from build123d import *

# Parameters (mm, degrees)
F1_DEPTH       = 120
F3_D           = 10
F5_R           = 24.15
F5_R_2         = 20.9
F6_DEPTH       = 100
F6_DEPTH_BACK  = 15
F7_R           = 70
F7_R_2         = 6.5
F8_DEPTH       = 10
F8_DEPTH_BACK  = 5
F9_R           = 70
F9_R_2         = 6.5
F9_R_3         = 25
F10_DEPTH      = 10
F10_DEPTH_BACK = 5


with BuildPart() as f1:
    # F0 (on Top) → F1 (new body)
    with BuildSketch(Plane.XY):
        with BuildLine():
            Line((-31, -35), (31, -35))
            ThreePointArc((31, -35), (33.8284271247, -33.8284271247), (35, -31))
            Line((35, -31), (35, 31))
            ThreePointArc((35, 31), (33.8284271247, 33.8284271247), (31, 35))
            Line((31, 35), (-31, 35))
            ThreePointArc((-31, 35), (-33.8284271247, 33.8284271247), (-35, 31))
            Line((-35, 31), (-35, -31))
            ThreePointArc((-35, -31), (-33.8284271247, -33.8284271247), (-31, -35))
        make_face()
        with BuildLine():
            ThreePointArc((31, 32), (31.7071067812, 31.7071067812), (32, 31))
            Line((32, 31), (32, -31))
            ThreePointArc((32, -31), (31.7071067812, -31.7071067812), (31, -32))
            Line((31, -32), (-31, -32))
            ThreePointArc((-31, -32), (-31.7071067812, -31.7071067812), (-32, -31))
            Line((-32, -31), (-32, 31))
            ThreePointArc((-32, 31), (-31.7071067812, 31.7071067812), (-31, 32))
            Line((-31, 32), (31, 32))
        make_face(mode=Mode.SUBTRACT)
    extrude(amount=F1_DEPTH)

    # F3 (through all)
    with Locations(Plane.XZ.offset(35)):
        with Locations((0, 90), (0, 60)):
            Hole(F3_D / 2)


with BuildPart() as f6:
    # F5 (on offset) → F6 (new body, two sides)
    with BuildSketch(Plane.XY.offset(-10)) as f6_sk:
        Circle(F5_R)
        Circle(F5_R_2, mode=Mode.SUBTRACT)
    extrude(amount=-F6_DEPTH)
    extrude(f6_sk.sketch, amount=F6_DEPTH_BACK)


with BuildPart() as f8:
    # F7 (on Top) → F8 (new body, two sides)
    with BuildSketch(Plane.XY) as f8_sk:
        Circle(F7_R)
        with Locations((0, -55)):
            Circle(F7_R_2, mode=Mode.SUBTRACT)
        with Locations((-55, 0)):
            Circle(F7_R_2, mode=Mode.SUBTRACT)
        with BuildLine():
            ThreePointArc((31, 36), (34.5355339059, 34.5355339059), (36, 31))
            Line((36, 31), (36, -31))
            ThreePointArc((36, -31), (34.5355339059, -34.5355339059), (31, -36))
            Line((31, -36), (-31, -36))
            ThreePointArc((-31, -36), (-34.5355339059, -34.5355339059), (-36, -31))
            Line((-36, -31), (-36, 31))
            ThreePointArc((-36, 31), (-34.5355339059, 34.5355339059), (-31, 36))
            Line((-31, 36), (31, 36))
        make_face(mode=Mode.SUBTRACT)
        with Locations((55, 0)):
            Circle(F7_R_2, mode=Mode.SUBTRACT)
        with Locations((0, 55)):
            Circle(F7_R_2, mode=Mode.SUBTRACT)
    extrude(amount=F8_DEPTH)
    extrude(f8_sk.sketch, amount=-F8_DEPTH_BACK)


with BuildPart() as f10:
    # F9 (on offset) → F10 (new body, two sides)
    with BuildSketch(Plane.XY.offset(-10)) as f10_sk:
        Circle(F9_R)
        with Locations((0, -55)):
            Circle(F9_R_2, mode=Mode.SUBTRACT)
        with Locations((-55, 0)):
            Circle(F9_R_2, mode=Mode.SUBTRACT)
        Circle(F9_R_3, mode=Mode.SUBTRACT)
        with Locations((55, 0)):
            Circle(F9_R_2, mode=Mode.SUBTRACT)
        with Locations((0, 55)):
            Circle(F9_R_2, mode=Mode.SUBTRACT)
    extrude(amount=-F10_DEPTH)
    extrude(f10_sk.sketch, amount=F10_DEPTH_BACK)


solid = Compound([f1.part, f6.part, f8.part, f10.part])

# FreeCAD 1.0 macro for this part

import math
import FreeCAD as App
import Part
import Sketcher
Q = App.Units.Quantity

doc = App.newDocument("Part")
body = doc.addObject("PartDesign::Body", "Body")

# Sketch on XY plane
sketch1 = body.newObject("Sketcher::SketchObject", "Sketch")
sketch1.AttachmentSupport = (doc.getObject("XY_Plane"), [""])
sketch1.MapMode = "FlatFace"
sketch1.addGeometry(Part.LineSegment(App.Vector(-31, -35, 0), App.Vector(31, -35, 0)), False)
sketch1.addGeometry(Part.ArcOfCircle(Part.Circle(App.Vector(31, -31, 0), App.Vector(0, 0, 1), 4), math.radians(-90), math.radians(0)), False)
sketch1.addGeometry(Part.LineSegment(App.Vector(35, -31, 0), App.Vector(35, 31, 0)), False)
sketch1.addGeometry(Part.ArcOfCircle(Part.Circle(App.Vector(31, 31, 0), App.Vector(0, 0, 1), 4), math.radians(0), math.radians(90)), False)
sketch1.addGeometry(Part.LineSegment(App.Vector(31, 35, 0), App.Vector(-31, 35, 0)), False)
sketch1.addGeometry(Part.ArcOfCircle(Part.Circle(App.Vector(-31, 31, 0), App.Vector(0, 0, 1), 4), math.radians(90), math.radians(180)), False)
sketch1.addGeometry(Part.LineSegment(App.Vector(-35, 31, 0), App.Vector(-35, -31, 0)), False)
sketch1.addGeometry(Part.ArcOfCircle(Part.Circle(App.Vector(-31, -31, 0), App.Vector(0, 0, 1), 4), math.radians(180), math.radians(270)), False)
sketch1.addGeometry(Part.LineSegment(App.Vector(-31, 32, 0), App.Vector(31, 32, 0)), False)
sketch1.addGeometry(Part.ArcOfCircle(Part.Circle(App.Vector(31, 31, 0), App.Vector(0, 0, 1), 1), math.radians(0), math.radians(90)), False)
sketch1.addGeometry(Part.LineSegment(App.Vector(32, 31, 0), App.Vector(32, -31, 0)), False)
sketch1.addGeometry(Part.ArcOfCircle(Part.Circle(App.Vector(31, -31, 0), App.Vector(0, 0, 1), 1), math.radians(-90), math.radians(0)), False)
sketch1.addGeometry(Part.LineSegment(App.Vector(31, -32, 0), App.Vector(-31, -32, 0)), False)
sketch1.addGeometry(Part.ArcOfCircle(Part.Circle(App.Vector(-31, -31, 0), App.Vector(0, 0, 1), 1), math.radians(180), math.radians(270)), False)
sketch1.addGeometry(Part.LineSegment(App.Vector(-32, -31, 0), App.Vector(-32, 31, 0)), False)
sketch1.addGeometry(Part.ArcOfCircle(Part.Circle(App.Vector(-31, 31, 0), App.Vector(0, 0, 1), 1), math.radians(90), math.radians(180)), False)
sketch1.addConstraint(Sketcher.Constraint("Tangent", 0, 2, 1, 1))
sketch1.addConstraint(Sketcher.Constraint("Tangent", 1, 2, 2, 1))
sketch1.addConstraint(Sketcher.Constraint("Tangent", 2, 2, 3, 1))
sketch1.addConstraint(Sketcher.Constraint("Tangent", 3, 2, 4, 1))
sketch1.addConstraint(Sketcher.Constraint("Tangent", 4, 2, 5, 1))
sketch1.addConstraint(Sketcher.Constraint("Tangent", 5, 2, 6, 1))
sketch1.addConstraint(Sketcher.Constraint("Tangent", 6, 2, 7, 1))
sketch1.addConstraint(Sketcher.Constraint("Tangent", 7, 2, 0, 1))
sketch1.addConstraint(Sketcher.Constraint("Tangent", 8, 2, 9, 2))
sketch1.addConstraint(Sketcher.Constraint("Tangent", 9, 1, 10, 1))
sketch1.addConstraint(Sketcher.Constraint("Tangent", 10, 2, 11, 2))
sketch1.addConstraint(Sketcher.Constraint("Tangent", 11, 1, 12, 1))
sketch1.addConstraint(Sketcher.Constraint("Tangent", 12, 2, 13, 2))
sketch1.addConstraint(Sketcher.Constraint("Tangent", 13, 1, 14, 1))
sketch1.addConstraint(Sketcher.Constraint("Tangent", 14, 2, 15, 2))
sketch1.addConstraint(Sketcher.Constraint("Tangent", 15, 1, 8, 1))
sketch1.addConstraint(Sketcher.Constraint("Horizontal", 0))
sketch1.addConstraint(Sketcher.Constraint("Vertical", 2))
sketch1.addConstraint(Sketcher.Constraint("Horizontal", 4))
sketch1.addConstraint(Sketcher.Constraint("Vertical", 6))
sketch1.addConstraint(Sketcher.Constraint("Horizontal", 8))
sketch1.addConstraint(Sketcher.Constraint("Vertical", 10))
sketch1.addConstraint(Sketcher.Constraint("Horizontal", 12))
sketch1.addConstraint(Sketcher.Constraint("Vertical", 14))
sketch1.addConstraint(Sketcher.Constraint("Coincident", 9, 3, 3, 3))
sketch1.addConstraint(Sketcher.Constraint("Coincident", 11, 3, 1, 3))
sketch1.addConstraint(Sketcher.Constraint("Coincident", 13, 3, 7, 3))
sketch1.addConstraint(Sketcher.Constraint("Equal", 1, 3))
sketch1.addConstraint(Sketcher.Constraint("Equal", 3, 5))
sketch1.addConstraint(Sketcher.Constraint("Equal", 5, 7))
sketch1.addConstraint(Sketcher.Constraint("Equal", 13, 15))
sketch1.addConstraint(Sketcher.Constraint("Symmetric", 1, 3, 5, 3, -1, 1))
sketch1.addConstraint(Sketcher.Constraint("Equal", 12, 2))
sketch1.addConstraint(Sketcher.Constraint("Radius", 1, Q("4 mm")))
sketch1.addConstraint(Sketcher.Constraint("Radius", 9, Q("1 mm")))
sketch1.addConstraint(Sketcher.Constraint("DistanceX", 0, 1, 0, 2, Q("62 mm")))
pad1 = body.newObject("PartDesign::Pad", "Pad")
pad1.Profile = sketch1
pad1.Length = 120

# Sketch on XZ plane
sketch2 = body.newObject("Sketcher::SketchObject", "Sketch001")
sketch2.AttachmentSupport = (doc.getObject("XZ_Plane"), [""])
sketch2.MapMode = "FlatFace"
sketch2.AttachmentOffset = App.Placement(App.Vector(0, 0, 35), App.Rotation())
sketch2.addGeometry(Part.Circle(App.Vector(0, 90, 0), App.Vector(0, 0, 1), 5), False)
sketch2.addGeometry(Part.Circle(App.Vector(0, 60, 0), App.Vector(0, 0, 1), 5), False)
sketch2.addConstraint(Sketcher.Constraint("Equal", 0, 1))
sketch2.addConstraint(Sketcher.Constraint("PointOnObject", 0, 3, -2))
sketch2.addConstraint(Sketcher.Constraint("PointOnObject", 1, 3, -2))
sketch2.addConstraint(Sketcher.Constraint("Diameter", 0, Q("10 mm")))
sketch2.addConstraint(Sketcher.Constraint("DistanceY", -1, 1, 0, 3, Q("90 mm")))
sketch2.addConstraint(Sketcher.Constraint("DistanceY", -1, 1, 1, 3, Q("60 mm")))
doc.recompute()
hole = body.newObject("PartDesign::Hole", "Hole")
hole.Profile = sketch2
hole.ThreadType = "None"
hole.Diameter = 10
hole.DepthType = "ThroughAll"
body2 = doc.addObject("PartDesign::Body", "Body001")

# Sketch on XY plane
sketch3 = body2.newObject("Sketcher::SketchObject", "Sketch002")
sketch3.AttachmentSupport = (doc.getObject("XY_Plane001"), [""])
sketch3.MapMode = "FlatFace"
sketch3.AttachmentOffset = App.Placement(App.Vector(0, 0, -10), App.Rotation())
sketch3.addGeometry(Part.Circle(App.Vector(0, 0, 0), App.Vector(0, 0, 1), 24.15), False)
sketch3.addGeometry(Part.Circle(App.Vector(0, 0, 0), App.Vector(0, 0, 1), 20.9), False)
sketch3.addConstraint(Sketcher.Constraint("Coincident", 0, 3, -1, 1))
sketch3.addConstraint(Sketcher.Constraint("Coincident", 1, 3, -1, 1))
sketch3.addConstraint(Sketcher.Constraint("Diameter", 0, Q("48.3 mm")))
sketch3.addConstraint(Sketcher.Constraint("Diameter", 1, Q("41.8 mm")))
pad2 = body2.newObject("PartDesign::Pad", "Pad001")
pad2.Profile = sketch3
pad2.Type = "TwoLengths"
pad2.Length = 100
pad2.Length2 = 15
pad2.Reversed = True
body3 = doc.addObject("PartDesign::Body", "Body002")

# Sketch on XY plane
sketch4 = body3.newObject("Sketcher::SketchObject", "Sketch003")
sketch4.AttachmentSupport = (doc.getObject("XY_Plane002"), [""])
sketch4.MapMode = "FlatFace"
sketch4.addGeometry(Part.Circle(App.Vector(0, 0, 0), App.Vector(0, 0, 1), 70), False)
sketch4.addGeometry(Part.Circle(App.Vector(0, -55, 0), App.Vector(0, 0, 1), 6.5), False)
sketch4.addGeometry(Part.Circle(App.Vector(-55, 0, 0), App.Vector(0, 0, 1), 6.5), False)
sketch4.addGeometry(Part.LineSegment(App.Vector(-31, 36, 0), App.Vector(31, 36, 0)), False)
sketch4.addGeometry(Part.ArcOfCircle(Part.Circle(App.Vector(31, 31, 0), App.Vector(0, 0, 1), 5), math.radians(0), math.radians(90)), False)
sketch4.addGeometry(Part.LineSegment(App.Vector(36, 31, 0), App.Vector(36, -31, 0)), False)
sketch4.addGeometry(Part.ArcOfCircle(Part.Circle(App.Vector(31, -31, 0), App.Vector(0, 0, 1), 5), math.radians(-90), math.radians(0)), False)
sketch4.addGeometry(Part.LineSegment(App.Vector(31, -36, 0), App.Vector(-31, -36, 0)), False)
sketch4.addGeometry(Part.ArcOfCircle(Part.Circle(App.Vector(-31, -31, 0), App.Vector(0, 0, 1), 5), math.radians(180), math.radians(270)), False)
sketch4.addGeometry(Part.LineSegment(App.Vector(-36, -31, 0), App.Vector(-36, 31, 0)), False)
sketch4.addGeometry(Part.ArcOfCircle(Part.Circle(App.Vector(-31, 31, 0), App.Vector(0, 0, 1), 5), math.radians(90), math.radians(180)), False)
sketch4.addGeometry(Part.Circle(App.Vector(55, 0, 0), App.Vector(0, 0, 1), 6.5), False)
sketch4.addGeometry(Part.Circle(App.Vector(0, 55, 0), App.Vector(0, 0, 1), 6.5), False)
sketch4.addConstraint(Sketcher.Constraint("Tangent", 3, 2, 4, 2))
sketch4.addConstraint(Sketcher.Constraint("Tangent", 4, 1, 5, 1))
sketch4.addConstraint(Sketcher.Constraint("Tangent", 5, 2, 6, 2))
sketch4.addConstraint(Sketcher.Constraint("Tangent", 6, 1, 7, 1))
sketch4.addConstraint(Sketcher.Constraint("Tangent", 7, 2, 8, 2))
sketch4.addConstraint(Sketcher.Constraint("Tangent", 8, 1, 9, 1))
sketch4.addConstraint(Sketcher.Constraint("Tangent", 9, 2, 10, 2))
sketch4.addConstraint(Sketcher.Constraint("Tangent", 10, 1, 3, 1))
sketch4.addConstraint(Sketcher.Constraint("Horizontal", 3))
sketch4.addConstraint(Sketcher.Constraint("Vertical", 5))
sketch4.addConstraint(Sketcher.Constraint("Horizontal", 7))
sketch4.addConstraint(Sketcher.Constraint("Vertical", 9))
sketch4.addConstraint(Sketcher.Constraint("Coincident", 0, 3, -1, 1))
sketch4.addConstraint(Sketcher.Constraint("Equal", 1, 2))
sketch4.addConstraint(Sketcher.Constraint("Equal", 4, 6))
sketch4.addConstraint(Sketcher.Constraint("Equal", 6, 8))
sketch4.addConstraint(Sketcher.Constraint("Equal", 8, 10))
sketch4.addConstraint(Sketcher.Constraint("Equal", 2, 11))
sketch4.addConstraint(Sketcher.Constraint("Equal", 11, 12))
sketch4.addConstraint(Sketcher.Constraint("Symmetric", 4, 3, 8, 3, -1, 1))
sketch4.addConstraint(Sketcher.Constraint("Symmetric", 2, 3, 11, 3, -1, 1))
sketch4.addConstraint(Sketcher.Constraint("Symmetric", 1, 3, 12, 3, -1, 1))
sketch4.addConstraint(Sketcher.Constraint("PointOnObject", 1, 3, -2))
sketch4.addConstraint(Sketcher.Constraint("PointOnObject", 2, 3, -1))
sketch4.addConstraint(Sketcher.Constraint("Equal", 7, 5))
sketch4.addConstraint(Sketcher.Constraint("Diameter", 0, Q("140 mm")))
sketch4.addConstraint(Sketcher.Constraint("Diameter", 1, Q("13 mm")))
sketch4.addConstraint(Sketcher.Constraint("Radius", 4, Q("5 mm")))
sketch4.addConstraint(Sketcher.Constraint("DistanceX", 3, 1, 3, 2, Q("62 mm")))
sketch4.addConstraint(Sketcher.Constraint("DistanceY", 1, 3, -1, 1, Q("55 mm")))
sketch4.addConstraint(Sketcher.Constraint("DistanceX", 2, 3, -1, 1, Q("55 mm")))
pad3 = body3.newObject("PartDesign::Pad", "Pad002")
pad3.Profile = sketch4
pad3.Type = "TwoLengths"
pad3.Length = 10
pad3.Length2 = 5
body4 = doc.addObject("PartDesign::Body", "Body003")

# Sketch on XY plane
sketch5 = body4.newObject("Sketcher::SketchObject", "Sketch004")
sketch5.AttachmentSupport = (doc.getObject("XY_Plane003"), [""])
sketch5.MapMode = "FlatFace"
sketch5.AttachmentOffset = App.Placement(App.Vector(0, 0, -10), App.Rotation())
sketch5.addGeometry(Part.Circle(App.Vector(0, 0, 0), App.Vector(0, 0, 1), 70), False)
sketch5.addGeometry(Part.Circle(App.Vector(0, -55, 0), App.Vector(0, 0, 1), 6.5), False)
sketch5.addGeometry(Part.Circle(App.Vector(-55, 0, 0), App.Vector(0, 0, 1), 6.5), False)
sketch5.addGeometry(Part.Circle(App.Vector(0, 0, 0), App.Vector(0, 0, 1), 25), False)
sketch5.addGeometry(Part.Circle(App.Vector(55, 0, 0), App.Vector(0, 0, 1), 6.5), False)
sketch5.addGeometry(Part.Circle(App.Vector(0, 55, 0), App.Vector(0, 0, 1), 6.5), False)
sketch5.addConstraint(Sketcher.Constraint("Coincident", 0, 3, -1, 1))
sketch5.addConstraint(Sketcher.Constraint("Coincident", 3, 3, -1, 1))
sketch5.addConstraint(Sketcher.Constraint("Equal", 1, 2))
sketch5.addConstraint(Sketcher.Constraint("Equal", 2, 4))
sketch5.addConstraint(Sketcher.Constraint("Equal", 4, 5))
sketch5.addConstraint(Sketcher.Constraint("Symmetric", 2, 3, 4, 3, -1, 1))
sketch5.addConstraint(Sketcher.Constraint("Symmetric", 1, 3, 5, 3, -1, 1))
sketch5.addConstraint(Sketcher.Constraint("PointOnObject", 1, 3, -2))
sketch5.addConstraint(Sketcher.Constraint("PointOnObject", 2, 3, -1))
sketch5.addConstraint(Sketcher.Constraint("Diameter", 0, Q("140 mm")))
sketch5.addConstraint(Sketcher.Constraint("Diameter", 1, Q("13 mm")))
sketch5.addConstraint(Sketcher.Constraint("Diameter", 3, Q("50 mm")))
sketch5.addConstraint(Sketcher.Constraint("DistanceY", 1, 3, -1, 1, Q("55 mm")))
sketch5.addConstraint(Sketcher.Constraint("DistanceX", 2, 3, -1, 1, Q("55 mm")))
pad4 = body4.newObject("PartDesign::Pad", "Pad003")
pad4.Profile = sketch5
pad4.Type = "TwoLengths"
pad4.Length = 10
pad4.Length2 = 5
pad4.Reversed = True

doc.recompute()
